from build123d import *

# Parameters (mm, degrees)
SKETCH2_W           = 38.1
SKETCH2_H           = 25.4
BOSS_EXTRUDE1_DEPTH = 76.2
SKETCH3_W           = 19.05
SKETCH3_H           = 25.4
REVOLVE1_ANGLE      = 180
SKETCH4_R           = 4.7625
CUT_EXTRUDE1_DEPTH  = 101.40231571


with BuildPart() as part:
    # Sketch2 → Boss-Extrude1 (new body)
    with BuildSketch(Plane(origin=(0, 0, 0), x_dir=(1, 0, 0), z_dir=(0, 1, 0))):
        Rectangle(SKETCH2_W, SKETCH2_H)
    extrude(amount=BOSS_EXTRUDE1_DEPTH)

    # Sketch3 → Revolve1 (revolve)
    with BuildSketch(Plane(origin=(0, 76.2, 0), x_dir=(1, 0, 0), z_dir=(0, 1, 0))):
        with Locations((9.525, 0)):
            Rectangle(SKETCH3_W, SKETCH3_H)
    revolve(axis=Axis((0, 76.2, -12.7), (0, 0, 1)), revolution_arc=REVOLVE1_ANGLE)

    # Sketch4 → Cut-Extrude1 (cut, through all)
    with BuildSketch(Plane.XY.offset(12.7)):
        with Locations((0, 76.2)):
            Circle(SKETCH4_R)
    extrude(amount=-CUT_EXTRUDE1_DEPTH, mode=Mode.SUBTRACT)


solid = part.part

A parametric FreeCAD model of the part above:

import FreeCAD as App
import Part
import Sketcher

V = App.Vector
Q = App.Units.Quantity

doc = App.newDocument("Part")
body = doc.addObject("PartDesign::Body", "Body")

# Sketch on XZ plane
sketch1 = body.newObject("Sketcher::SketchObject", "Sketch")
sketch1.AttachmentSupport = (doc.getObject("XZ_Plane"), [""])
sketch1.MapMode = "FlatFace"
sketch1.addGeometry(Part.LineSegment(V(-19.05, -12.7, 0), V(-19.05, 12.7, 0)), False)
sketch1.addGeometry(Part.LineSegment(V(-19.05, 12.7, 0), V(19.05, 12.7, 0)), False)
sketch1.addGeometry(Part.LineSegment(V(19.05, 12.7, 0), V(19.05, -12.7, 0)), False)
sketch1.addGeometry(Part.LineSegment(V(19.05, -12.7, 0), V(-19.05, -12.7, 0)), False)
sketch1.addConstraint(Sketcher.Constraint("Coincident", 0, 2, 1, 1))
sketch1.addConstraint(Sketcher.Constraint("Coincident", 1, 2, 2, 1))
sketch1.addConstraint(Sketcher.Constraint("Coincident", 2, 2, 3, 1))
sketch1.addConstraint(Sketcher.Constraint("Coincident", 3, 2, 0, 1))
sketch1.addConstraint(Sketcher.Constraint("Vertical", 0))
sketch1.addConstraint(Sketcher.Constraint("Horizontal", 1))
sketch1.addConstraint(Sketcher.Constraint("Vertical", 2))
sketch1.addConstraint(Sketcher.Constraint("Horizontal", 3))
sketch1.addConstraint(Sketcher.Constraint("Symmetric", 0, 2, 2, 2, -1, 1))
sketch1.addConstraint(Sketcher.Constraint("DistanceY", 0, 1, 0, 2, Q("1 in")))
sketch1.addConstraint(Sketcher.Constraint("DistanceX", 1, 1, 1, 2, Q("1.5 in")))
pad1 = body.newObject("PartDesign::Pad", "Pad")
pad1.Profile = sketch1
pad1.Length = Q("3 in")
pad1.Reversed = True

# Sketch on XZ plane
sketch2 = body.newObject("Sketcher::SketchObject", "Sketch001")
sketch2.AttachmentSupport = (doc.getObject("XZ_Plane"), [""])
sketch2.MapMode = "FlatFace"
sketch2.AttachmentOffset = App.Placement(V(0, 0, -3 * 25.4), App.Rotation())
sketch2.addGeometry(Part.LineSegment(V(0, -12.7, 0), V(0, 12.7, 0)), False)
sketch2.addGeometry(Part.LineSegment(V(0, 12.7, 0), V(19.05, 12.7, 0)), False)
sketch2.addGeometry(Part.LineSegment(V(19.05, 12.7, 0), V(19.05, -12.7, 0)), False)
sketch2.addGeometry(Part.LineSegment(V(19.05, -12.7, 0), V(0, -12.7, 0)), False)
sketch2.addConstraint(Sketcher.Constraint("Coincident", 0, 2, 1, 1))
sketch2.addConstraint(Sketcher.Constraint("Coincident", 1, 2, 2, 1))
sketch2.addConstraint(Sketcher.Constraint("Coincident", 2, 2, 3, 1))
sketch2.addConstraint(Sketcher.Constraint("Coincident", 3, 2, 0, 1))
sketch2.addConstraint(Sketcher.Constraint("Vertical", 0))
sketch2.addConstraint(Sketcher.Constraint("Horizontal", 1))
sketch2.addConstraint(Sketcher.Constraint("Vertical", 2))
sketch2.addConstraint(Sketcher.Constraint("Horizontal", 3))
sketch2.addConstraint(Sketcher.Constraint("Symmetric", 0, 2, 3, 2, -1, 1))
sketch2.addConstraint(Sketcher.Constraint("DistanceY", 0, 1, 0, 2, Q("1 in")))
sketch2.addConstraint(Sketcher.Constraint("DistanceX", 1, 1, 1, 2, Q("0.75 in")))
revolution = body.newObject("PartDesign::Revolution", "Revolution")
revolution.Profile = sketch2
revolution.ReferenceAxis = (sketch2, ["V_Axis"])
revolution.Angle = 180

# Sketch on XY plane
sketch3 = body.newObject("Sketcher::SketchObject", "Sketch002")
sketch3.AttachmentSupport = (doc.getObject("XY_Plane"), [""])
sketch3.MapMode = "FlatFace"
sketch3.AttachmentOffset = App.Placement(V(0, 0, 0.5 * 25.4), App.Rotation())
sketch3.addGeometry(Part.Circle(V(0, 76.2, 0), V(0, 0, 1), 4.7625), False)
sketch3.addConstraint(Sketcher.Constraint("PointOnObject", 0, 3, -2))
sketch3.addConstraint(Sketcher.Constraint("Diameter", 0, Q("0.375 in")))
sketch3.addConstraint(Sketcher.Constraint("DistanceY", -1, 1, 0, 3, Q("3 in")))
pocket1 = body.newObject("PartDesign::Pocket", "Pocket")
pocket1.Profile = sketch3
pocket1.Type = "ThroughAll"

doc.recompute()
